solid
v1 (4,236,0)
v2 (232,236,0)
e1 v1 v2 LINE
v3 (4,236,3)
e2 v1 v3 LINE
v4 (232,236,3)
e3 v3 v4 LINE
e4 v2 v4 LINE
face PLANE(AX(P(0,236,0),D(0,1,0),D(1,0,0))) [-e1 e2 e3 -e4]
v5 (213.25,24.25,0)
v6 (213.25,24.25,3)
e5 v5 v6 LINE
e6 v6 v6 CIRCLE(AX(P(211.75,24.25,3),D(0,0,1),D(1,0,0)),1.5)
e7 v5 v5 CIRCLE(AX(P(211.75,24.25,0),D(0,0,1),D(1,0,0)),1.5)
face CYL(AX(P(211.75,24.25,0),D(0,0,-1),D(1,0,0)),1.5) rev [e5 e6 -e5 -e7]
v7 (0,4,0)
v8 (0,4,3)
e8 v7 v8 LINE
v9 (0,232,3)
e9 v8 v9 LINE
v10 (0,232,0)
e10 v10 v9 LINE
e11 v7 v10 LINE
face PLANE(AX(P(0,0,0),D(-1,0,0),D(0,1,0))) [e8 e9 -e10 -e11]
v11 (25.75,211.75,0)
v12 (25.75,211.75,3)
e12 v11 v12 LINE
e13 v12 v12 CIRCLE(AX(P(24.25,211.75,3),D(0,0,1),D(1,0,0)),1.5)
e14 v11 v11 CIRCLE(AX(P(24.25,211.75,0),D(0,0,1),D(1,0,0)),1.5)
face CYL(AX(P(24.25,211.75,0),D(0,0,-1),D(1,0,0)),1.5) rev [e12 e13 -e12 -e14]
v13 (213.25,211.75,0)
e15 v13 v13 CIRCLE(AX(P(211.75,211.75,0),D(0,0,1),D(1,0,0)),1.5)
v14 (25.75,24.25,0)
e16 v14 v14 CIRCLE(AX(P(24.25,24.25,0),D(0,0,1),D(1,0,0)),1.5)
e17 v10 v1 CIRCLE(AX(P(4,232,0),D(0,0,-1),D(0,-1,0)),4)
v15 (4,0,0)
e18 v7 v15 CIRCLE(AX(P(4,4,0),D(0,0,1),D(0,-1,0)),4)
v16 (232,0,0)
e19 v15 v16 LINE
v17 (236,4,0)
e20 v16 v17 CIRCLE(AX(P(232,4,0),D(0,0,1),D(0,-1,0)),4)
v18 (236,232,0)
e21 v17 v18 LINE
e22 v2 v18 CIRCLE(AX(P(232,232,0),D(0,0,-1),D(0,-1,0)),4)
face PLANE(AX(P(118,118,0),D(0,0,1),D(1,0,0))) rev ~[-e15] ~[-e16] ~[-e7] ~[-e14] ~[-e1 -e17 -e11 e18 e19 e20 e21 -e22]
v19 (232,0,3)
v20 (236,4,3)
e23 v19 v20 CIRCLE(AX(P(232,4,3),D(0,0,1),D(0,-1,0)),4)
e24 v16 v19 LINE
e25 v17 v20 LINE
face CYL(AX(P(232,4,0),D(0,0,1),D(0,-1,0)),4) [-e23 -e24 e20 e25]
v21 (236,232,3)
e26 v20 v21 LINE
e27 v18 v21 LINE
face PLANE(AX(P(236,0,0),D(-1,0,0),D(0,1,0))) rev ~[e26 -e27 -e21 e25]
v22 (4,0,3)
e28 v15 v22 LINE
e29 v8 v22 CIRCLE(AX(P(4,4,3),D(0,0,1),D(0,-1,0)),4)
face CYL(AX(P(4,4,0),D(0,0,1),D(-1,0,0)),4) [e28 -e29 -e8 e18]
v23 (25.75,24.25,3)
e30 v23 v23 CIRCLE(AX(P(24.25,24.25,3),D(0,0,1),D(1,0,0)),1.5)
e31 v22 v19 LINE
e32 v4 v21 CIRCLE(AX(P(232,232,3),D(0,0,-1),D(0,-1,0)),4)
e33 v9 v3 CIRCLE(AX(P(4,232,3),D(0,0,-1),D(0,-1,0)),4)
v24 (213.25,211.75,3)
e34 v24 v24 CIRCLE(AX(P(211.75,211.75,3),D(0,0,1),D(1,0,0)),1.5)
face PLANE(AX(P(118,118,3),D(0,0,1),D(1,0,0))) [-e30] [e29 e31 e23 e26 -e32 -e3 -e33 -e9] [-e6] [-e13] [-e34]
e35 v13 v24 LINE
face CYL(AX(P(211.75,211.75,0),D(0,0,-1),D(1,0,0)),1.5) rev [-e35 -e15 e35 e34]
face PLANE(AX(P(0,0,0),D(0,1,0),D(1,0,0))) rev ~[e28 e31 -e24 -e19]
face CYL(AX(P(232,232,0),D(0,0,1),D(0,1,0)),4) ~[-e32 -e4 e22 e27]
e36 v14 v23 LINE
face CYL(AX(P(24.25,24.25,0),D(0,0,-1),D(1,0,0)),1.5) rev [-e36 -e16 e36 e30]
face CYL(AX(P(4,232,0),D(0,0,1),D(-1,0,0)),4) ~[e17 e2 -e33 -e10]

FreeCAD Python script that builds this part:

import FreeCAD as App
import Part
import Sketcher

V = App.Vector
Q = App.Units.Quantity


def edges_at(feature, points):
    """Names of the edges that pass closest to the given points."""
    edges = feature.Shape.Edges
    near = lambda p: min(range(len(edges)), key=lambda i: edges[i].distToShape(Part.Vertex(*p))[0])
    return sorted({f"Edge{near(p) + 1}" for p in points})

doc = App.newDocument("Part")
body = doc.addObject("PartDesign::Body", "Body")

sketch1 = body.newObject("Sketcher::SketchObject", "Sketch")
sketch1.AttachmentSupport = (doc.getObject("XY_Plane"), [""])
sketch1.MapMode = "FlatFace"
sketch1.addGeometry([
    Part.LineSegment(V(0, 236, 0), V(0, 0, 0)),
    Part.LineSegment(V(0, 0, 0), V(236, 0, 0)),
    Part.LineSegment(V(236, 0, 0), V(236, 236, 0)),
    Part.LineSegment(V(236, 236, 0), V(0, 236, 0)),
    Part.Circle(V(24.2, 24.2, 0), V(0, 0, 1), 1.5),
    Part.Circle(V(211.8, 24.2, 0), V(0, 0, 1), 1.5),
    Part.Circle(V(24.2, 211.8, 0), V(0, 0, 1), 1.5),
    Part.Circle(V(211.8, 211.8, 0), V(0, 0, 1), 1.5),
], False)
sketch1.addConstraint([
    Sketcher.Constraint("Coincident", 0, 2, 1, 1),
    Sketcher.Constraint("Coincident", 1, 2, 2, 1),
    Sketcher.Constraint("Coincident", 2, 2, 3, 1),
    Sketcher.Constraint("Coincident", 3, 2, 0, 1),
    Sketcher.Constraint("Vertical", 0),
    Sketcher.Constraint("Horizontal", 1),
    Sketcher.Constraint("Vertical", 2),
    Sketcher.Constraint("Horizontal", 3),
    Sketcher.Constraint("Coincident", 0, 2, -1, 1),
    Sketcher.Constraint("Equal", 4, 5),
    Sketcher.Constraint("Equal", 5, 6),
    Sketcher.Constraint("Equal", 6, 7),
    Sketcher.Constraint("Horizontal", 4, 3, 5, 3),
    Sketcher.Constraint("Horizontal", 6, 3, 7, 3),
    Sketcher.Constraint("Vertical", 4, 3, 6, 3),
    Sketcher.Constraint("Vertical", 5, 3, 7, 3),
    Sketcher.Constraint("Equal", 3, 0),
    Sketcher.Constraint("Diameter", 4, Q("3 mm")),
    Sketcher.Constraint("DistanceX", 1, 1, 1, 2, Q("236 mm")),
    Sketcher.Constraint("DistanceX", 4, 3, 5, 3, Q("187.5 mm")),
    Sketcher.Constraint("DistanceY", 4, 3, 6, 3, Q("187.5 mm")),
    Sketcher.Constraint("DistanceX", -1, 1, 4, 3, Q("24.25 mm")),
    Sketcher.Constraint("DistanceY", -1, 1, 4, 3, Q("24.25 mm")),
])
pad1 = body.newObject("PartDesign::Pad", "Pad")
pad1.Profile = sketch1
pad1.Length = 3
doc.recompute()

fillet = body.newObject("PartDesign::Fillet", "Fillet")
fillet.Base = (pad1, edges_at(pad1, [
    (0, 0, 1.5),
    (0, 236, 1.5),
    (236, 236, 1.5),
    (236, 0, 1.5),
]))
fillet.Radius = 4

doc.recompute()
